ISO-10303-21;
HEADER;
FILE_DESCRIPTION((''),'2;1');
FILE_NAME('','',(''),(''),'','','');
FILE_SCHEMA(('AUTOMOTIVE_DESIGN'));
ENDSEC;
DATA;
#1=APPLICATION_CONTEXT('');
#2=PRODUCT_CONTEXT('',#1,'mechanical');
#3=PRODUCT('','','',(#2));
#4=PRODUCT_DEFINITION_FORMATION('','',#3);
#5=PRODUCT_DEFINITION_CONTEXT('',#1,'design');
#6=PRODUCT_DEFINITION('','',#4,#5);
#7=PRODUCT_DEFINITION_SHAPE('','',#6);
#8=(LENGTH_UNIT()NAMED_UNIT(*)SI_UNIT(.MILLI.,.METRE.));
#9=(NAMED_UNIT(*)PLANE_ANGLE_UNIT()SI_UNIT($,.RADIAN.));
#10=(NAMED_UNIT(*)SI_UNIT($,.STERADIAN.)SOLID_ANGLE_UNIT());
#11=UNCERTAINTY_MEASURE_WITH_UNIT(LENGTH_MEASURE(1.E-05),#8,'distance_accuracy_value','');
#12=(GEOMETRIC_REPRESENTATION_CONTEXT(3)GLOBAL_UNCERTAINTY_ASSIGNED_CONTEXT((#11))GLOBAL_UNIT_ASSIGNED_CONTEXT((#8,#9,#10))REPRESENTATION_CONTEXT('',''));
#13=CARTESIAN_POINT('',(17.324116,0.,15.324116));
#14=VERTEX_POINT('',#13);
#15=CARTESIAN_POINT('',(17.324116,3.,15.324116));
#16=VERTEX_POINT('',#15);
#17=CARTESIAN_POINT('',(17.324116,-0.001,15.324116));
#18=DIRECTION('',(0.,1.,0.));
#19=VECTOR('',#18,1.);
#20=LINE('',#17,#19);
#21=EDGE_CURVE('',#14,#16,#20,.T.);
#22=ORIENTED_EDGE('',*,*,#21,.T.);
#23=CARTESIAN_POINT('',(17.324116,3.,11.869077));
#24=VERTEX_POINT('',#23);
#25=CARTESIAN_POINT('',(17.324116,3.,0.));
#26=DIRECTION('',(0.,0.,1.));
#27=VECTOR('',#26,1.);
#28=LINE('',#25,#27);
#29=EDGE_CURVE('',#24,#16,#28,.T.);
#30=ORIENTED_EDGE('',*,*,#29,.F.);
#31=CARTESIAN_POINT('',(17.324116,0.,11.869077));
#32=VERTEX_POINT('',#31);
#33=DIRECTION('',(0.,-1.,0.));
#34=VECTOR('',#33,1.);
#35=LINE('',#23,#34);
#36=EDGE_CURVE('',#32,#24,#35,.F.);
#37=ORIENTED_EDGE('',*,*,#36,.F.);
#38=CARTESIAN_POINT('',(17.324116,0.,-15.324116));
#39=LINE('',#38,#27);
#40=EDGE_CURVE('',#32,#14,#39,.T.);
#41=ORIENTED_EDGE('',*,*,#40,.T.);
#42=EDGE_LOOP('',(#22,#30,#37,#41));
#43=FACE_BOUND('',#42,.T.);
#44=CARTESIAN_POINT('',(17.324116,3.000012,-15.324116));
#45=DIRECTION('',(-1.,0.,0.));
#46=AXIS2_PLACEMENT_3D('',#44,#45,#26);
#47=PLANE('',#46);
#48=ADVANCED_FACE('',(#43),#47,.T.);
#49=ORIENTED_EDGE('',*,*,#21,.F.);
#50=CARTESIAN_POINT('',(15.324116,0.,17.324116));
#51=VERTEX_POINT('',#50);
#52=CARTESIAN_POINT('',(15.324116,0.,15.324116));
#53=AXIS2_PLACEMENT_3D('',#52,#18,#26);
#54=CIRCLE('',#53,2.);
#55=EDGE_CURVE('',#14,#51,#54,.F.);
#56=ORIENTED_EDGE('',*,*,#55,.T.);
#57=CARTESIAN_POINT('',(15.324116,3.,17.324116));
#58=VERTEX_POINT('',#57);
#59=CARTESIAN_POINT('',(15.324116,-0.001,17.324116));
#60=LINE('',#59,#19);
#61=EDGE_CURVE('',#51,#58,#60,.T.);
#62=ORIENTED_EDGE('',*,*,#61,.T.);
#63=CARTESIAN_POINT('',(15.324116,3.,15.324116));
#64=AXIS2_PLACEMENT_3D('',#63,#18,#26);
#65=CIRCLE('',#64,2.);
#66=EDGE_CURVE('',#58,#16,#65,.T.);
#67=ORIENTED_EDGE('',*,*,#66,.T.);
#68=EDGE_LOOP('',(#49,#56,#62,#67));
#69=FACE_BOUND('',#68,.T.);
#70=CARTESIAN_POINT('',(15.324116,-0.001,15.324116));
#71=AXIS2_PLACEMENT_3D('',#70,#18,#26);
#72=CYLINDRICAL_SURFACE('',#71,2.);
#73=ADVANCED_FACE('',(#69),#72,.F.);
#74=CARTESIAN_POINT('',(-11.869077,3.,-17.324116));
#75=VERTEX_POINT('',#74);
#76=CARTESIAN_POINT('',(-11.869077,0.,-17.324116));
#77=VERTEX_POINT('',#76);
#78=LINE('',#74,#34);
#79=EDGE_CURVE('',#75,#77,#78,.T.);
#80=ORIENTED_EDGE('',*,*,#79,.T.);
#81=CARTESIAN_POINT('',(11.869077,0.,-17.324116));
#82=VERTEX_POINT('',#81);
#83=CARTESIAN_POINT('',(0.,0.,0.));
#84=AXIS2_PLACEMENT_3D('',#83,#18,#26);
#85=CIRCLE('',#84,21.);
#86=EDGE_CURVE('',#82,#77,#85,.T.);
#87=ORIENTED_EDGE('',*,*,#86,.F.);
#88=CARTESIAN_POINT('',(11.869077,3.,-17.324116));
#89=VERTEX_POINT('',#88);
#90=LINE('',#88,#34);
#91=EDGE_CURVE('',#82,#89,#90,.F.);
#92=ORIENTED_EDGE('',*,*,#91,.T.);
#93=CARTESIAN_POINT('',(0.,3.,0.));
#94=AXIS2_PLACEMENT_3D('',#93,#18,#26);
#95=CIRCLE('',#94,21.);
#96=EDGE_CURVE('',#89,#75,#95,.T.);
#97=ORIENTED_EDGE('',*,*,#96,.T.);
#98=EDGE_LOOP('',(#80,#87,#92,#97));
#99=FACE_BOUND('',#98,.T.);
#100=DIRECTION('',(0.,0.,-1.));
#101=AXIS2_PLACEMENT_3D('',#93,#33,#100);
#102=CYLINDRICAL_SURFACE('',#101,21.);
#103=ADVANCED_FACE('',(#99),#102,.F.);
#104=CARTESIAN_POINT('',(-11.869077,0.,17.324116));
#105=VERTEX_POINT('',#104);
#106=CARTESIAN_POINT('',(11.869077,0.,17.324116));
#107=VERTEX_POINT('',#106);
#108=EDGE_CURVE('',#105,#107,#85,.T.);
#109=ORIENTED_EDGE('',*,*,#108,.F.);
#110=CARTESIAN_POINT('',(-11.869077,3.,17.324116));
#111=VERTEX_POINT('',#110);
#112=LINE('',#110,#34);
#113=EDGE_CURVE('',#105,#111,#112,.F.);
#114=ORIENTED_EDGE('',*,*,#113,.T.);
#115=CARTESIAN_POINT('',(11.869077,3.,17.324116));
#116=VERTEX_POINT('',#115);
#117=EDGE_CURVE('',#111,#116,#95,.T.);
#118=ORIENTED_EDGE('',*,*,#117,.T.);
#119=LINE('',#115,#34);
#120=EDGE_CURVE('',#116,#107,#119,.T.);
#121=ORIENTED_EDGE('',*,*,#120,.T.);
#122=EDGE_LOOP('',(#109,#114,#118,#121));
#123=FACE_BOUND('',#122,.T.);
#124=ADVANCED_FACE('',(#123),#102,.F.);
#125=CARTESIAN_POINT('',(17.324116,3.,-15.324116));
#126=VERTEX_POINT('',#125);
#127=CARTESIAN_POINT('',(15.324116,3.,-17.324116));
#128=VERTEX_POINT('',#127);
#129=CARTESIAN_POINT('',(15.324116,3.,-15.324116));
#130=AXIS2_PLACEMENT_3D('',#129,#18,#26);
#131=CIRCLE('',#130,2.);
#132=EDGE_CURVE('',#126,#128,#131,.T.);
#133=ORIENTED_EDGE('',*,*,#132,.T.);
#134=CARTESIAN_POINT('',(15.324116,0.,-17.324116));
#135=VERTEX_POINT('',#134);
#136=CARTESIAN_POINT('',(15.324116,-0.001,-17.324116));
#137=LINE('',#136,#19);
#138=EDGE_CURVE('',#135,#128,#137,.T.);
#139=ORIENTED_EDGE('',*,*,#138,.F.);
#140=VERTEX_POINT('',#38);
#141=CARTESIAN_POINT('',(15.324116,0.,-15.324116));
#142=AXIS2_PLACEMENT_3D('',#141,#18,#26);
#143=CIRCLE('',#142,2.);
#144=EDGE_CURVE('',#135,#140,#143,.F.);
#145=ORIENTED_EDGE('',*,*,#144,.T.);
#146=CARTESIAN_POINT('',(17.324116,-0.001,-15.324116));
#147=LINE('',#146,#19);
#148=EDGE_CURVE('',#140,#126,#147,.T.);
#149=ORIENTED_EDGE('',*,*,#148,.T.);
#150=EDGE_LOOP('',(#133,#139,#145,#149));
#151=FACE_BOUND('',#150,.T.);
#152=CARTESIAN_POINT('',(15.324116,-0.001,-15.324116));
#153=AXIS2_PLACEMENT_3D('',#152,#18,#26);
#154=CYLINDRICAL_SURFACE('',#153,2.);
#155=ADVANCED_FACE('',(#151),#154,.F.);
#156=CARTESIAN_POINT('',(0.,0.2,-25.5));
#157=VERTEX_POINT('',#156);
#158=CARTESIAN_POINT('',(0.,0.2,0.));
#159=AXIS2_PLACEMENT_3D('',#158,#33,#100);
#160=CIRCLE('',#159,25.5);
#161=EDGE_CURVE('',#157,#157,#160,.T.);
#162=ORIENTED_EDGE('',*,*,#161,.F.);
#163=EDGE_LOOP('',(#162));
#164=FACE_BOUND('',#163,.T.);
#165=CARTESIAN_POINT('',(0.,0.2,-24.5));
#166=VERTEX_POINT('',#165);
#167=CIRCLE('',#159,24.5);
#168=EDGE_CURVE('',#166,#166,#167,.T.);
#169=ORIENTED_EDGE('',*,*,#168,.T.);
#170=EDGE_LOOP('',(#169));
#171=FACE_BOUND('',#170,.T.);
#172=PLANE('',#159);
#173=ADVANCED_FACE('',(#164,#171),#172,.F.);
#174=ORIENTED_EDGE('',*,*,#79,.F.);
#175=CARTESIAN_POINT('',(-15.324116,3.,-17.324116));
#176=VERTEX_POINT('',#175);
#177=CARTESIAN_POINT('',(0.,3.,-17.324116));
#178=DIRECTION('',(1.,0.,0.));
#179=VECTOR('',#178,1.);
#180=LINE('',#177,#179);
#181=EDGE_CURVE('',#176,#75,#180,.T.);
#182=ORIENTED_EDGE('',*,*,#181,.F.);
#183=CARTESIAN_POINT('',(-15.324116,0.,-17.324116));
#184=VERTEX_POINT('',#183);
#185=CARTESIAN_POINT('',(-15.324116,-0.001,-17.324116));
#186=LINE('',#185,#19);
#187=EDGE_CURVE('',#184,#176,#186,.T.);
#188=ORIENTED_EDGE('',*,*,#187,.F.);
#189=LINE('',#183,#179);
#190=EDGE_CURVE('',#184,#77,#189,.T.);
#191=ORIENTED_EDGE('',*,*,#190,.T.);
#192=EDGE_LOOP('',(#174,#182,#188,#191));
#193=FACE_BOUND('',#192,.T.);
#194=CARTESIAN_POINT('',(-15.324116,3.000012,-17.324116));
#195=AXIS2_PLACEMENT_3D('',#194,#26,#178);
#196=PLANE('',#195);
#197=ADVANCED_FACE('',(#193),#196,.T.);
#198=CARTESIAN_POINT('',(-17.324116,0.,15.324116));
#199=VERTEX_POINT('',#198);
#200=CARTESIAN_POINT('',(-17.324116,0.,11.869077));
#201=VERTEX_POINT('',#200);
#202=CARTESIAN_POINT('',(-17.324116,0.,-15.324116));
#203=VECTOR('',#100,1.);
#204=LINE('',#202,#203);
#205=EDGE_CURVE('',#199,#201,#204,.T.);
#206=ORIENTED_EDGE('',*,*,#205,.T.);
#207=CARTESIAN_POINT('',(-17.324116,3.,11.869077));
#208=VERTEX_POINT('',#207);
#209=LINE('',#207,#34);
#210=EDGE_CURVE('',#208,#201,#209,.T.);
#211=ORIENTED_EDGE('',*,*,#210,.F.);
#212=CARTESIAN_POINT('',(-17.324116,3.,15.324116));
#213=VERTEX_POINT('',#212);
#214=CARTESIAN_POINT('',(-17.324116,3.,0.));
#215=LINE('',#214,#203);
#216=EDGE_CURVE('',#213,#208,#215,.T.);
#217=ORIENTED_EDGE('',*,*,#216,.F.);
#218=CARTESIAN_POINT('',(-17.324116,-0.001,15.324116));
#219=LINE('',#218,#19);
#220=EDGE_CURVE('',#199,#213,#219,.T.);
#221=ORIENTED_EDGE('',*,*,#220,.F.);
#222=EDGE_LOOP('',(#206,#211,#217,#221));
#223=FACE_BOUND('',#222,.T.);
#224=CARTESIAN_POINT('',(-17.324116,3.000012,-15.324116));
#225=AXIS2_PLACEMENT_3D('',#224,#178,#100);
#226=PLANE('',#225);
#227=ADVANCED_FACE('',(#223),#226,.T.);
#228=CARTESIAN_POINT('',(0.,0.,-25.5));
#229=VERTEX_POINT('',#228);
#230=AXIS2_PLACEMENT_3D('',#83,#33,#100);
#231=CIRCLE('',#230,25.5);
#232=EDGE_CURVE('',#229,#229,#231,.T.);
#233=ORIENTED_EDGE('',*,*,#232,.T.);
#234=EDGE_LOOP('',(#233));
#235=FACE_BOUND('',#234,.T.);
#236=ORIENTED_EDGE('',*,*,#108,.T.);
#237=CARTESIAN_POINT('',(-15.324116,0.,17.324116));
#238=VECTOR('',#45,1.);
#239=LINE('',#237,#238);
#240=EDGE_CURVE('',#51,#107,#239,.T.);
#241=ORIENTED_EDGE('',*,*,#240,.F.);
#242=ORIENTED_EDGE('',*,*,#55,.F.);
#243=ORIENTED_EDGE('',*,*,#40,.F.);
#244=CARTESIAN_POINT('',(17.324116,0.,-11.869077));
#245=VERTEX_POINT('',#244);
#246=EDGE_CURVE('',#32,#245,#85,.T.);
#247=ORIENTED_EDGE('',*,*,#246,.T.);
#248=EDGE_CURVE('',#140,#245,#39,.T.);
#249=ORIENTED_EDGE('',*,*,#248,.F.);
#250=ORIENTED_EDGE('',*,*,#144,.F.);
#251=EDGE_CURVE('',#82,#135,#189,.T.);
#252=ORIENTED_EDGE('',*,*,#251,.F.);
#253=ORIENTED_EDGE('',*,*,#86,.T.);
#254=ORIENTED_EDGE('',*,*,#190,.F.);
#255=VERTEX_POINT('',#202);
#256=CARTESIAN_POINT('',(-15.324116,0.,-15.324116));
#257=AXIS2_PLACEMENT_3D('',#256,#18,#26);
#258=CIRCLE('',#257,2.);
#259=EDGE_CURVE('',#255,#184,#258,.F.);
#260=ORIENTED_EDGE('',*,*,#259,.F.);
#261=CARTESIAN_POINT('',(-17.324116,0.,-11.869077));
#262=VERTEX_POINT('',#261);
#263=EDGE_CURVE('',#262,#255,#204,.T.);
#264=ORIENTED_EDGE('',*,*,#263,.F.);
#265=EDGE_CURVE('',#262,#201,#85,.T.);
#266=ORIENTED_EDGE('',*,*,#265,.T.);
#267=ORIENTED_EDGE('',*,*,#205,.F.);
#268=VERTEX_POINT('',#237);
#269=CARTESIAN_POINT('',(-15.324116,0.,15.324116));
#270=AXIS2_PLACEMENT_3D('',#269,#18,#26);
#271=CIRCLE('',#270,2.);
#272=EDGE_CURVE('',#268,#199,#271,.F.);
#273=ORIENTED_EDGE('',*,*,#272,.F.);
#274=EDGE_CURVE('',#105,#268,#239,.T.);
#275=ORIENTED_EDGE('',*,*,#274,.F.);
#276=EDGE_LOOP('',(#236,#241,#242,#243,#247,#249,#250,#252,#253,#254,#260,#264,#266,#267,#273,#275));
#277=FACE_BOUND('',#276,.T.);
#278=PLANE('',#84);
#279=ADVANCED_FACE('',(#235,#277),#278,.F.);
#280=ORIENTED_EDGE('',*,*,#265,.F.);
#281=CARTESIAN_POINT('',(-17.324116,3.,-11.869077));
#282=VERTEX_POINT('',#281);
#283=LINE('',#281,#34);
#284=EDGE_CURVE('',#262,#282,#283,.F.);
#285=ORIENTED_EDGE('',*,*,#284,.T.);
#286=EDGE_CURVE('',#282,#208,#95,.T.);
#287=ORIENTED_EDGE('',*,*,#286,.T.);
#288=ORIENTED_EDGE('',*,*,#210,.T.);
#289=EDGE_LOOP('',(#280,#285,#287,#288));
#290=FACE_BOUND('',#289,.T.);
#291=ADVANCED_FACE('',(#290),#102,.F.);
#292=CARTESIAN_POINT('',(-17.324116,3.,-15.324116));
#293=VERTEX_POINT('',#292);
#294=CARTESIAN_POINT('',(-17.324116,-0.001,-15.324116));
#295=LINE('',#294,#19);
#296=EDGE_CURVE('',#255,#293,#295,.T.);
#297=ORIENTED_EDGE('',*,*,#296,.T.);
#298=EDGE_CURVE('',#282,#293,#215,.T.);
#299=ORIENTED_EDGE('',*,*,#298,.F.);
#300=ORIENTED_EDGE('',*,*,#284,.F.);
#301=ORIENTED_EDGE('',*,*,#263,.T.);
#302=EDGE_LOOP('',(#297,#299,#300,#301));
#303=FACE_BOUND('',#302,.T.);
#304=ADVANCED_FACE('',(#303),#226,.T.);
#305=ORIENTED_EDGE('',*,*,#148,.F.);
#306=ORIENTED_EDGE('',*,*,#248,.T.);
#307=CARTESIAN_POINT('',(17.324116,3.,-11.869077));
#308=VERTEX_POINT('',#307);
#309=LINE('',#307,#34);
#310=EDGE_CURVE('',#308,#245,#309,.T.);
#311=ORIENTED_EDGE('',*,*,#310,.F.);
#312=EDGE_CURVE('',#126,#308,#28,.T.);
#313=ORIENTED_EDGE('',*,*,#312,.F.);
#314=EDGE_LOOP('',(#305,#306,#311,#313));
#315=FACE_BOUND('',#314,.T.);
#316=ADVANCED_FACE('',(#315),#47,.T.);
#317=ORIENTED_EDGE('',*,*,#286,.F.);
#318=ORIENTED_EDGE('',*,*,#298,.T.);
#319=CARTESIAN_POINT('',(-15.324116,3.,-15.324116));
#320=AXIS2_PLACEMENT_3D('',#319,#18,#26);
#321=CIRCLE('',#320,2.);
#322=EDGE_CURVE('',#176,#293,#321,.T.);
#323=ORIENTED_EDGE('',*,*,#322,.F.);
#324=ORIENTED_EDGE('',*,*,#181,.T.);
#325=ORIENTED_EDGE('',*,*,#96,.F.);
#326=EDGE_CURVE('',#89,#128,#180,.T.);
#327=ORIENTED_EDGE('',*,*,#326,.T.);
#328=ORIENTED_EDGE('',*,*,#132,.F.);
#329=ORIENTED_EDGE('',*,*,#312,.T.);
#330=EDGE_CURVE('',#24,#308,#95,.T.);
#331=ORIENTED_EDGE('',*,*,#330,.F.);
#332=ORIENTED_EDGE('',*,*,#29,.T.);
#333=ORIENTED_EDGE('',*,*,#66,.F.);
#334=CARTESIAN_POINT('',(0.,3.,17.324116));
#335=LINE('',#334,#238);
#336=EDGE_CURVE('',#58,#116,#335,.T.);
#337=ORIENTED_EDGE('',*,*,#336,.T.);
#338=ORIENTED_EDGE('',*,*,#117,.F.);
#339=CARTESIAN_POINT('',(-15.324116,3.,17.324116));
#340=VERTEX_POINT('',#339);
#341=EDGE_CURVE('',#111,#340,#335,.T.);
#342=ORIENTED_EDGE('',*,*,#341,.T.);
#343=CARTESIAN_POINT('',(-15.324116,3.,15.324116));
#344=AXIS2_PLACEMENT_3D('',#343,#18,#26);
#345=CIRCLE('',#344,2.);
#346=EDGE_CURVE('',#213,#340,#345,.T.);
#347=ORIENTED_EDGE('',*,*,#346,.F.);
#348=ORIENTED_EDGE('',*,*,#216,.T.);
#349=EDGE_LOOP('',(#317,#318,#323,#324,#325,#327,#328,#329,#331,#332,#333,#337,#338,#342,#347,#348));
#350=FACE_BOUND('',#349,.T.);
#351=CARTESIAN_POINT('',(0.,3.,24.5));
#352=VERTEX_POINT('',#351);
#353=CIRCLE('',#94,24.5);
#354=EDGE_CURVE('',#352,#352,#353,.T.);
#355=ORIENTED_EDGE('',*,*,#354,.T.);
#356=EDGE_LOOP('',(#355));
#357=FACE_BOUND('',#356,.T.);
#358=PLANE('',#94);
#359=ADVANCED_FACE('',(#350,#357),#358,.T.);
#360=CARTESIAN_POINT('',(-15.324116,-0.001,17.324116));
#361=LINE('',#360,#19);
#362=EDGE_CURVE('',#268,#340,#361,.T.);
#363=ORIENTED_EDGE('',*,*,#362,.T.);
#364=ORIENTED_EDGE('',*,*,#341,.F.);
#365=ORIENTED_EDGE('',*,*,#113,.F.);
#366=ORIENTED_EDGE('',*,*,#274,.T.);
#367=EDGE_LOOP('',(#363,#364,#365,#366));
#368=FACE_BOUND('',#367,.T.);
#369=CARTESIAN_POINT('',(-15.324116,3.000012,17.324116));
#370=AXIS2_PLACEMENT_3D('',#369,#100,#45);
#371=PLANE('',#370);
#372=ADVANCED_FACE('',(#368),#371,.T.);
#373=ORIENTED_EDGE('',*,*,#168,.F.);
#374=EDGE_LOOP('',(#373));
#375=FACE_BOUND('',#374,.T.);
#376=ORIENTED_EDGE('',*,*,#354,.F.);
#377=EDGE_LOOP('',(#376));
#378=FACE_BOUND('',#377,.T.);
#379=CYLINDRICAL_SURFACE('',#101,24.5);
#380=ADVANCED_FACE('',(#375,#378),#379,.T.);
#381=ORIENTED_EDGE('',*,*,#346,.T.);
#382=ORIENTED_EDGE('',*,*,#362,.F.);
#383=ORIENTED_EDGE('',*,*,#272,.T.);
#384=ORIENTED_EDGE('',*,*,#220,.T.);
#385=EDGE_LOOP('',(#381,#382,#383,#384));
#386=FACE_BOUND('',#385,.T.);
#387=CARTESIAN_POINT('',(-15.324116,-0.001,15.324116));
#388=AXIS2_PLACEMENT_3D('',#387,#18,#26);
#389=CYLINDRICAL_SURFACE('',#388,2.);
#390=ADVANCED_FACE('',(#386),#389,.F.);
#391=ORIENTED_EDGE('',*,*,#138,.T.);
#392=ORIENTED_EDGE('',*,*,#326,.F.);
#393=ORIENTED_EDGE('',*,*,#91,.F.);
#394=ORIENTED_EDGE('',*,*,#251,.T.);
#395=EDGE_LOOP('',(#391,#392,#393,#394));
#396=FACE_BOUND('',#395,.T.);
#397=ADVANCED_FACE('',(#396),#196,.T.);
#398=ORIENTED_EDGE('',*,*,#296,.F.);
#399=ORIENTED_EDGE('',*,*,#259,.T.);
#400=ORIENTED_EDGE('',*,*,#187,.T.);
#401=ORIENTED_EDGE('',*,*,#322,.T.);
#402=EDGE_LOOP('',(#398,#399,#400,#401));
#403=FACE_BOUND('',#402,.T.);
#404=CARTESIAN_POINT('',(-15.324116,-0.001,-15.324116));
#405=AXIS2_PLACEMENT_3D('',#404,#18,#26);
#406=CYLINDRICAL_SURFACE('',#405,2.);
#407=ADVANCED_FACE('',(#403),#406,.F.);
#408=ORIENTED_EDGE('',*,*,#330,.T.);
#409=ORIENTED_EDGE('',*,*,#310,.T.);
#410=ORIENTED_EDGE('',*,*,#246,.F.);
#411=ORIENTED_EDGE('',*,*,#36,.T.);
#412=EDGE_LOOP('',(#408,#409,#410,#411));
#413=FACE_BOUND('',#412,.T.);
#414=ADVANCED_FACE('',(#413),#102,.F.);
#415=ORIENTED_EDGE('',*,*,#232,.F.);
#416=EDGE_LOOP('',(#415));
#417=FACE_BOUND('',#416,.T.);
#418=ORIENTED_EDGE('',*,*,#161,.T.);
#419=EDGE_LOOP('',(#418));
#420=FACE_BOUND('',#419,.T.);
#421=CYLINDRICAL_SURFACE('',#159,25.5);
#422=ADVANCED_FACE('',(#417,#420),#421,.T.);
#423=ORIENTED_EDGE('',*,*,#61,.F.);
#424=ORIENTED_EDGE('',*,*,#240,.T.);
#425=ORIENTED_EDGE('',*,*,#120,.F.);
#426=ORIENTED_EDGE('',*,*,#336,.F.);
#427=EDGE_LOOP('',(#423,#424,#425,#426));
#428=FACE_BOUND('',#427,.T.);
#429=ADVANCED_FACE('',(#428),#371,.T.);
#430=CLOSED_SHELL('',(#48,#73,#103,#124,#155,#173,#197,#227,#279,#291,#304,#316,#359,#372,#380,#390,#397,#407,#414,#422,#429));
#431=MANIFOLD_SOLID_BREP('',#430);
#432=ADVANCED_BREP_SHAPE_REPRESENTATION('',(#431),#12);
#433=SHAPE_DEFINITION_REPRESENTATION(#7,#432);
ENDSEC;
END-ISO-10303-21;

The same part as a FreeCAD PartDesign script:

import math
import FreeCAD as App
import Part
import Sketcher

doc = App.newDocument("Part")
body = doc.addObject("PartDesign::Body", "Body")

# Sketch on XZ plane
sketch1 = body.newObject("Sketcher::SketchObject", "Sketch")
sketch1.AttachmentSupport = (doc.getObject("XZ_Plane"), [""])
sketch1.MapMode = "FlatFace"
sketch1.addGeometry([
    Part.Circle(App.Vector(0, 0, 0), App.Vector(0, 0, 1), 24),
    Part.Circle(App.Vector(0, 0, 0), App.Vector(0, 0, 1), 21),
], False)
sketch1.addConstraint([
    Sketcher.Constraint("Coincident", 0, 3, -1, 1),
    Sketcher.Constraint("Coincident", 1, 3, -1, 1),
    Sketcher.Constraint("Diameter", 0, 49.0),
    Sketcher.Constraint("Diameter", 1, 42.0),
])
pad1 = body.newObject("PartDesign::Pad", "Pad")
pad1.Profile = sketch1
pad1.Length = 3
pad1.Reversed = True

# Sketch on XZ plane
sketch2 = body.newObject("Sketcher::SketchObject", "Sketch001")
sketch2.AttachmentSupport = (doc.getObject("XZ_Plane"), [""])
sketch2.MapMode = "FlatFace"
sketch2.addGeometry([
    Part.Circle(App.Vector(0, 0, 0), App.Vector(0, 0, 1), 26),
    Part.Circle(App.Vector(0, 0, 0), App.Vector(0, 0, 1), 24),
], False)
sketch2.addConstraint([
    Sketcher.Constraint("Coincident", 0, 3, -1, 1),
    Sketcher.Constraint("Coincident", 1, 3, -1, 1),
    Sketcher.Constraint("Diameter", 0, 51.0),
    Sketcher.Constraint("Diameter", 1, 49.0),
])
pad2 = body.newObject("PartDesign::Pad", "Pad001")
pad2.Profile = sketch2
pad2.Length = 0.2
pad2.Reversed = True

# Sketch on XZ plane
sketch3 = body.newObject("Sketcher::SketchObject", "Sketch002")
sketch3.AttachmentSupport = (doc.getObject("XZ_Plane"), [""])
sketch3.MapMode = "FlatFace"
sketch3.addGeometry([
    Part.LineSegment(App.Vector(15.3, -17.3, 0), App.Vector(-15.3, -17.3, 0)),  # 0
    Part.ArcOfCircle(Part.Circle(App.Vector(-15.3, -15.3, 0), App.Vector(0, 0, 1), 2), math.radians(-180), math.radians(-90)),  # 1
    Part.LineSegment(App.Vector(-17.3, -15.3, 0), App.Vector(-17.3, 15.3, 0)),  # 2
    Part.ArcOfCircle(Part.Circle(App.Vector(-15.3, 15.3, 0), App.Vector(0, 0, 1), 2), math.radians(90), math.radians(180)),  # 3
    Part.LineSegment(App.Vector(-15.3, 17.3, 0), App.Vector(15.3, 17.3, 0)),  # 4
    Part.ArcOfCircle(Part.Circle(App.Vector(15.3, 15.3, 0), App.Vector(0, 0, 1), 2), math.radians(0), math.radians(90)),  # 5
    Part.LineSegment(App.Vector(17.3, 15.3, 0), App.Vector(17.3, -15.3, 0)),  # 6
    Part.ArcOfCircle(Part.Circle(App.Vector(15.3, -15.3, 0), App.Vector(0, 0, 1), 2), math.radians(-90), math.radians(0)),  # 7
], False)
sketch3.addConstraint([
    Sketcher.Constraint("Tangent", 0, 2, 1, 2),
    Sketcher.Constraint("Tangent", 1, 1, 2, 1),
    Sketcher.Constraint("Tangent", 2, 2, 3, 2),
    Sketcher.Constraint("Tangent", 3, 1, 4, 1),
    Sketcher.Constraint("Tangent", 4, 2, 5, 2),
    Sketcher.Constraint("Tangent", 5, 1, 6, 1),
    Sketcher.Constraint("Tangent", 6, 2, 7, 2),
    Sketcher.Constraint("Tangent", 7, 1, 0, 1),
    Sketcher.Constraint("Horizontal", 0),
    Sketcher.Constraint("Vertical", 2),
    Sketcher.Constraint("Horizontal", 4),
    Sketcher.Constraint("Vertical", 6),
    Sketcher.Constraint("Equal", 1, 3),
    Sketcher.Constraint("Equal", 3, 5),
    Sketcher.Constraint("Equal", 5, 7),
    Sketcher.Constraint("Symmetric", 1, 3, 5, 3, -1, 1),
    Sketcher.Constraint("Equal", 4, 2),
    Sketcher.Constraint("Radius", 1, 2.0),
    Sketcher.Constraint("DistanceX", 0, 2, 0, 1, 30.648232),
])
pocket1 = body.newObject("PartDesign::Pocket", "Pocket")
pocket1.Profile = sketch3
pocket1.Length = 3

doc.recompute()
